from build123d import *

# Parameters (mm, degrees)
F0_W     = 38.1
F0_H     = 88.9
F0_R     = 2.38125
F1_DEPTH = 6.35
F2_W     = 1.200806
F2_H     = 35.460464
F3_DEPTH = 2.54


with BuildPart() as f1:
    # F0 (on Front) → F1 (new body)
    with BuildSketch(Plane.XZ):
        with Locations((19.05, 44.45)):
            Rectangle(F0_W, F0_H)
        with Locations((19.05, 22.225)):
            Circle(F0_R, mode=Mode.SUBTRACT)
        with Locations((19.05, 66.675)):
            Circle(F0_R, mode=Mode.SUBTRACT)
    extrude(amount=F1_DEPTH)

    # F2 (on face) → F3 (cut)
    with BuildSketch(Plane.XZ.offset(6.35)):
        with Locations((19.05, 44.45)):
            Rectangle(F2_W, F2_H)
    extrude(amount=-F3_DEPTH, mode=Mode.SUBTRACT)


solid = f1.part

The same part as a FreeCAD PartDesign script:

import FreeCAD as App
import Part
import Sketcher
from FreeCAD import Vector
Q = App.Units.Quantity


def add_polygon(sketch, points):
    """Adds a closed chain of lines whose ends are joined by coincident constraints."""
    first, n = sketch.GeometryCount, len(points)
    for a, b in zip(points, points[1:] + points[:1]):
        sketch.addGeometry(Part.LineSegment(App.Vector(*a, 0), App.Vector(*b, 0)), False)
    for i in range(n):
        sketch.addConstraint(Sketcher.Constraint("Coincident", first + i, 2, first + (i + 1) % n, 1))

doc = App.newDocument("Part")
params = doc.addObject("Spreadsheet::Sheet", "Params")
for row, (alias, value) in enumerate([
    ("sketch1_diameter", "0.1875 in"),
    ("sketch1_width", "1.5 in"),
    ("sketch1_height", "3.5 in"),
    ("pad1_length", "0.25 in"),
    ("pocket1_length", "0.1 in"),
], start=1):
    params.set(f"A{row}", alias)
    params.set(f"B{row}", "=" + value)
    params.setAlias(f"B{row}", alias)

body = doc.addObject("PartDesign::Body", "Body")

sketch1 = doc.addObject("Sketcher::SketchObject", "Sketch")
body.addObject(sketch1)
sketch1.AttachmentSupport = (doc.XZ_Plane, [""])
sketch1.MapMode = "FlatFace"
add_polygon(sketch1, [(0, 88.9), (0, 0), (38.1, 0), (38.1, 88.9)])
sketch1.addGeometry(Part.Circle(Vector(19.1, 22.2, 0), Vector(0, 0, 1), 2.4), False)
sketch1.addGeometry(Part.Circle(Vector(19.1, 66.7, 0), Vector(0, 0, 1), 2.4), False)
sketch1.addConstraint([
    Sketcher.Constraint("Vertical", 0),
    Sketcher.Constraint("Horizontal", 1),
    Sketcher.Constraint("Vertical", 2),
    Sketcher.Constraint("Horizontal", 3),
    Sketcher.Constraint("Coincident", 0, 2, -1, 1),
    Sketcher.Constraint("Equal", 4, 5),
    Sketcher.Constraint("Vertical", 4, 3, 5, 3),
    Sketcher.Constraint("Diameter", 4, Q("0.1875 in")),
    Sketcher.Constraint("DistanceX", 1, 1, 1, 2, Q("1.5 in")),
    Sketcher.Constraint("DistanceY", 0, 2, 0, 1, Q("3.5 in")),
    Sketcher.Constraint("DistanceX", -1, 1, 4, 3, Q("0.75 in")),
    Sketcher.Constraint("DistanceY", 4, 3, 5, 3, Q("1.75 in")),
    Sketcher.Constraint("DistanceY", -1, 1, 4, 3, Q("0.875 in")),
])
sketch1.setExpression("Constraints[11]", "Params.sketch1_diameter")
sketch1.setExpression("Constraints[12]", "Params.sketch1_width")
sketch1.setExpression("Constraints[13]", "Params.sketch1_height")
pad1 = doc.addObject("PartDesign::Pad", "Pad")
body.addObject(pad1)
pad1.Profile = sketch1
pad1.setExpression("Length", "Params.pad1_length")

sketch2 = doc.addObject("Sketcher::SketchObject", "Sketch001")
body.addObject(sketch2)
sketch2.AttachmentSupport = (doc.XZ_Plane, [""])
sketch2.MapMode = "FlatFace"
sketch2.AttachmentOffset = App.Placement(Vector(0, 0, 0.25 * 25.4), App.Rotation())
add_polygon(sketch2, [(18.4, 62.2), (18.4, 26.7), (19.7, 26.7), (19.7, 62.2)])
sketch2.addConstraint([
    Sketcher.Constraint("Vertical", 0),
    Sketcher.Constraint("Horizontal", 1),
    Sketcher.Constraint("Vertical", 2),
    Sketcher.Constraint("Horizontal", 3),
    Sketcher.Constraint("DistanceX", 1, 1, 1, 2, Q("1.200806 mm")),
    Sketcher.Constraint("DistanceY", 0, 2, 0, 1, Q("35.460464 mm")),
    Sketcher.Constraint("DistanceY", -1, 1, 2, 2, Q("62.180232 mm")),
    Sketcher.Constraint("DistanceX", -1, 1, 0, 2, Q("18.449597 mm")),
])
pocket1 = doc.addObject("PartDesign::Pocket", "Pocket")
body.addObject(pocket1)
pocket1.Profile = sketch2
pocket1.setExpression("Length", "Params.pocket1_length")

doc.recompute()
